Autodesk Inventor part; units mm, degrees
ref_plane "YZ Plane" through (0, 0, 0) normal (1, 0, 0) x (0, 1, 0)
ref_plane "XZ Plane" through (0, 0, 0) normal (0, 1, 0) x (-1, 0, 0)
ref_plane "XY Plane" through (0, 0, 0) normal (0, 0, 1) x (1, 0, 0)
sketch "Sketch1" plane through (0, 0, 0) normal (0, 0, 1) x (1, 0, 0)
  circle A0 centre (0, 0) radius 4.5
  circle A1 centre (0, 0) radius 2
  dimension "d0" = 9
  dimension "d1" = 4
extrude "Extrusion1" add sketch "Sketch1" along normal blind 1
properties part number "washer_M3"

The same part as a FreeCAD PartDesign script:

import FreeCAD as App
import Part
import Sketcher

V = App.Vector

doc = App.newDocument("Part")
body = doc.addObject("PartDesign::Body", "Body")

# Sketch on XY plane
sketch1 = body.newObject("Sketcher::SketchObject", "Sketch")
sketch1.AttachmentSupport = (doc.getObject("XY_Plane"), [""])
sketch1.MapMode = "FlatFace"
sketch1.addGeometry([
    Part.Circle(V(0, 0, 0), V(0, 0, 1), 4.5),
    Part.Circle(V(0, 0, 0), V(0, 0, 1), 2),
], False)
sketch1.addConstraint([
    Sketcher.Constraint("Coincident", 0, 3, -1, 1),
    Sketcher.Constraint("Coincident", 1, 3, -1, 1),
    Sketcher.Constraint("Diameter", 0, 9.0),
    Sketcher.Constraint("Diameter", 1, 4.0),
])
pad1 = body.newObject("PartDesign::Pad", "Pad")
pad1.Profile = sketch1
pad1.Length = 1

doc.recompute()
